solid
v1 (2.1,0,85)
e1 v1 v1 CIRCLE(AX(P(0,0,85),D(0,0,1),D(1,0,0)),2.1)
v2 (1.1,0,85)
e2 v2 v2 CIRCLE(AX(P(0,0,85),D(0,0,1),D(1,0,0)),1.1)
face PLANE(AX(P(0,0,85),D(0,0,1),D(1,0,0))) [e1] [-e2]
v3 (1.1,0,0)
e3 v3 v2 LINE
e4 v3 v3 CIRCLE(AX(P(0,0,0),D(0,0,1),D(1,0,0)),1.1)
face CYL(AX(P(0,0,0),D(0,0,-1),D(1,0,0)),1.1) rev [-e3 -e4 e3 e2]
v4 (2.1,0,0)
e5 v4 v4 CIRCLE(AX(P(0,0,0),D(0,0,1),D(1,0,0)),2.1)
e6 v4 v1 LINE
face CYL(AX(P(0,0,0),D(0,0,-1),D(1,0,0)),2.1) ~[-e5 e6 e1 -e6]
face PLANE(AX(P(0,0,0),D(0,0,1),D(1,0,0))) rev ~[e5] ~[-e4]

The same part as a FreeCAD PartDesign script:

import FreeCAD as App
import Part
import Sketcher
from FreeCAD import Vector

doc = App.newDocument("Part")
body = doc.addObject("PartDesign::Body", "Body")

# Sketch on XY plane
sketch1 = doc.addObject("Sketcher::SketchObject", "Sketch")
body.addObject(sketch1)
sketch1.AttachmentSupport = (doc.XY_Plane, [""])
sketch1.MapMode = "FlatFace"
sketch1.addGeometry(Part.Circle(Vector(0, 0, 0), Vector(0, 0, 1), 2.1), False)
sketch1.addGeometry(Part.Circle(Vector(0, 0, 0), Vector(0, 0, 1), 1.1), False)
sketch1.addConstraint(Sketcher.Constraint("Coincident", 0, 3, -1, 1))
sketch1.addConstraint(Sketcher.Constraint("Coincident", 1, 3, -1, 1))
sketch1.addConstraint(Sketcher.Constraint("Diameter", 0, 4.2))
sketch1.addConstraint(Sketcher.Constraint("Diameter", 1, 2.2))
pad1 = doc.addObject("PartDesign::Pad", "Pad")
body.addObject(pad1)
pad1.Profile = sketch1
pad1.Length = 85

doc.recompute()
